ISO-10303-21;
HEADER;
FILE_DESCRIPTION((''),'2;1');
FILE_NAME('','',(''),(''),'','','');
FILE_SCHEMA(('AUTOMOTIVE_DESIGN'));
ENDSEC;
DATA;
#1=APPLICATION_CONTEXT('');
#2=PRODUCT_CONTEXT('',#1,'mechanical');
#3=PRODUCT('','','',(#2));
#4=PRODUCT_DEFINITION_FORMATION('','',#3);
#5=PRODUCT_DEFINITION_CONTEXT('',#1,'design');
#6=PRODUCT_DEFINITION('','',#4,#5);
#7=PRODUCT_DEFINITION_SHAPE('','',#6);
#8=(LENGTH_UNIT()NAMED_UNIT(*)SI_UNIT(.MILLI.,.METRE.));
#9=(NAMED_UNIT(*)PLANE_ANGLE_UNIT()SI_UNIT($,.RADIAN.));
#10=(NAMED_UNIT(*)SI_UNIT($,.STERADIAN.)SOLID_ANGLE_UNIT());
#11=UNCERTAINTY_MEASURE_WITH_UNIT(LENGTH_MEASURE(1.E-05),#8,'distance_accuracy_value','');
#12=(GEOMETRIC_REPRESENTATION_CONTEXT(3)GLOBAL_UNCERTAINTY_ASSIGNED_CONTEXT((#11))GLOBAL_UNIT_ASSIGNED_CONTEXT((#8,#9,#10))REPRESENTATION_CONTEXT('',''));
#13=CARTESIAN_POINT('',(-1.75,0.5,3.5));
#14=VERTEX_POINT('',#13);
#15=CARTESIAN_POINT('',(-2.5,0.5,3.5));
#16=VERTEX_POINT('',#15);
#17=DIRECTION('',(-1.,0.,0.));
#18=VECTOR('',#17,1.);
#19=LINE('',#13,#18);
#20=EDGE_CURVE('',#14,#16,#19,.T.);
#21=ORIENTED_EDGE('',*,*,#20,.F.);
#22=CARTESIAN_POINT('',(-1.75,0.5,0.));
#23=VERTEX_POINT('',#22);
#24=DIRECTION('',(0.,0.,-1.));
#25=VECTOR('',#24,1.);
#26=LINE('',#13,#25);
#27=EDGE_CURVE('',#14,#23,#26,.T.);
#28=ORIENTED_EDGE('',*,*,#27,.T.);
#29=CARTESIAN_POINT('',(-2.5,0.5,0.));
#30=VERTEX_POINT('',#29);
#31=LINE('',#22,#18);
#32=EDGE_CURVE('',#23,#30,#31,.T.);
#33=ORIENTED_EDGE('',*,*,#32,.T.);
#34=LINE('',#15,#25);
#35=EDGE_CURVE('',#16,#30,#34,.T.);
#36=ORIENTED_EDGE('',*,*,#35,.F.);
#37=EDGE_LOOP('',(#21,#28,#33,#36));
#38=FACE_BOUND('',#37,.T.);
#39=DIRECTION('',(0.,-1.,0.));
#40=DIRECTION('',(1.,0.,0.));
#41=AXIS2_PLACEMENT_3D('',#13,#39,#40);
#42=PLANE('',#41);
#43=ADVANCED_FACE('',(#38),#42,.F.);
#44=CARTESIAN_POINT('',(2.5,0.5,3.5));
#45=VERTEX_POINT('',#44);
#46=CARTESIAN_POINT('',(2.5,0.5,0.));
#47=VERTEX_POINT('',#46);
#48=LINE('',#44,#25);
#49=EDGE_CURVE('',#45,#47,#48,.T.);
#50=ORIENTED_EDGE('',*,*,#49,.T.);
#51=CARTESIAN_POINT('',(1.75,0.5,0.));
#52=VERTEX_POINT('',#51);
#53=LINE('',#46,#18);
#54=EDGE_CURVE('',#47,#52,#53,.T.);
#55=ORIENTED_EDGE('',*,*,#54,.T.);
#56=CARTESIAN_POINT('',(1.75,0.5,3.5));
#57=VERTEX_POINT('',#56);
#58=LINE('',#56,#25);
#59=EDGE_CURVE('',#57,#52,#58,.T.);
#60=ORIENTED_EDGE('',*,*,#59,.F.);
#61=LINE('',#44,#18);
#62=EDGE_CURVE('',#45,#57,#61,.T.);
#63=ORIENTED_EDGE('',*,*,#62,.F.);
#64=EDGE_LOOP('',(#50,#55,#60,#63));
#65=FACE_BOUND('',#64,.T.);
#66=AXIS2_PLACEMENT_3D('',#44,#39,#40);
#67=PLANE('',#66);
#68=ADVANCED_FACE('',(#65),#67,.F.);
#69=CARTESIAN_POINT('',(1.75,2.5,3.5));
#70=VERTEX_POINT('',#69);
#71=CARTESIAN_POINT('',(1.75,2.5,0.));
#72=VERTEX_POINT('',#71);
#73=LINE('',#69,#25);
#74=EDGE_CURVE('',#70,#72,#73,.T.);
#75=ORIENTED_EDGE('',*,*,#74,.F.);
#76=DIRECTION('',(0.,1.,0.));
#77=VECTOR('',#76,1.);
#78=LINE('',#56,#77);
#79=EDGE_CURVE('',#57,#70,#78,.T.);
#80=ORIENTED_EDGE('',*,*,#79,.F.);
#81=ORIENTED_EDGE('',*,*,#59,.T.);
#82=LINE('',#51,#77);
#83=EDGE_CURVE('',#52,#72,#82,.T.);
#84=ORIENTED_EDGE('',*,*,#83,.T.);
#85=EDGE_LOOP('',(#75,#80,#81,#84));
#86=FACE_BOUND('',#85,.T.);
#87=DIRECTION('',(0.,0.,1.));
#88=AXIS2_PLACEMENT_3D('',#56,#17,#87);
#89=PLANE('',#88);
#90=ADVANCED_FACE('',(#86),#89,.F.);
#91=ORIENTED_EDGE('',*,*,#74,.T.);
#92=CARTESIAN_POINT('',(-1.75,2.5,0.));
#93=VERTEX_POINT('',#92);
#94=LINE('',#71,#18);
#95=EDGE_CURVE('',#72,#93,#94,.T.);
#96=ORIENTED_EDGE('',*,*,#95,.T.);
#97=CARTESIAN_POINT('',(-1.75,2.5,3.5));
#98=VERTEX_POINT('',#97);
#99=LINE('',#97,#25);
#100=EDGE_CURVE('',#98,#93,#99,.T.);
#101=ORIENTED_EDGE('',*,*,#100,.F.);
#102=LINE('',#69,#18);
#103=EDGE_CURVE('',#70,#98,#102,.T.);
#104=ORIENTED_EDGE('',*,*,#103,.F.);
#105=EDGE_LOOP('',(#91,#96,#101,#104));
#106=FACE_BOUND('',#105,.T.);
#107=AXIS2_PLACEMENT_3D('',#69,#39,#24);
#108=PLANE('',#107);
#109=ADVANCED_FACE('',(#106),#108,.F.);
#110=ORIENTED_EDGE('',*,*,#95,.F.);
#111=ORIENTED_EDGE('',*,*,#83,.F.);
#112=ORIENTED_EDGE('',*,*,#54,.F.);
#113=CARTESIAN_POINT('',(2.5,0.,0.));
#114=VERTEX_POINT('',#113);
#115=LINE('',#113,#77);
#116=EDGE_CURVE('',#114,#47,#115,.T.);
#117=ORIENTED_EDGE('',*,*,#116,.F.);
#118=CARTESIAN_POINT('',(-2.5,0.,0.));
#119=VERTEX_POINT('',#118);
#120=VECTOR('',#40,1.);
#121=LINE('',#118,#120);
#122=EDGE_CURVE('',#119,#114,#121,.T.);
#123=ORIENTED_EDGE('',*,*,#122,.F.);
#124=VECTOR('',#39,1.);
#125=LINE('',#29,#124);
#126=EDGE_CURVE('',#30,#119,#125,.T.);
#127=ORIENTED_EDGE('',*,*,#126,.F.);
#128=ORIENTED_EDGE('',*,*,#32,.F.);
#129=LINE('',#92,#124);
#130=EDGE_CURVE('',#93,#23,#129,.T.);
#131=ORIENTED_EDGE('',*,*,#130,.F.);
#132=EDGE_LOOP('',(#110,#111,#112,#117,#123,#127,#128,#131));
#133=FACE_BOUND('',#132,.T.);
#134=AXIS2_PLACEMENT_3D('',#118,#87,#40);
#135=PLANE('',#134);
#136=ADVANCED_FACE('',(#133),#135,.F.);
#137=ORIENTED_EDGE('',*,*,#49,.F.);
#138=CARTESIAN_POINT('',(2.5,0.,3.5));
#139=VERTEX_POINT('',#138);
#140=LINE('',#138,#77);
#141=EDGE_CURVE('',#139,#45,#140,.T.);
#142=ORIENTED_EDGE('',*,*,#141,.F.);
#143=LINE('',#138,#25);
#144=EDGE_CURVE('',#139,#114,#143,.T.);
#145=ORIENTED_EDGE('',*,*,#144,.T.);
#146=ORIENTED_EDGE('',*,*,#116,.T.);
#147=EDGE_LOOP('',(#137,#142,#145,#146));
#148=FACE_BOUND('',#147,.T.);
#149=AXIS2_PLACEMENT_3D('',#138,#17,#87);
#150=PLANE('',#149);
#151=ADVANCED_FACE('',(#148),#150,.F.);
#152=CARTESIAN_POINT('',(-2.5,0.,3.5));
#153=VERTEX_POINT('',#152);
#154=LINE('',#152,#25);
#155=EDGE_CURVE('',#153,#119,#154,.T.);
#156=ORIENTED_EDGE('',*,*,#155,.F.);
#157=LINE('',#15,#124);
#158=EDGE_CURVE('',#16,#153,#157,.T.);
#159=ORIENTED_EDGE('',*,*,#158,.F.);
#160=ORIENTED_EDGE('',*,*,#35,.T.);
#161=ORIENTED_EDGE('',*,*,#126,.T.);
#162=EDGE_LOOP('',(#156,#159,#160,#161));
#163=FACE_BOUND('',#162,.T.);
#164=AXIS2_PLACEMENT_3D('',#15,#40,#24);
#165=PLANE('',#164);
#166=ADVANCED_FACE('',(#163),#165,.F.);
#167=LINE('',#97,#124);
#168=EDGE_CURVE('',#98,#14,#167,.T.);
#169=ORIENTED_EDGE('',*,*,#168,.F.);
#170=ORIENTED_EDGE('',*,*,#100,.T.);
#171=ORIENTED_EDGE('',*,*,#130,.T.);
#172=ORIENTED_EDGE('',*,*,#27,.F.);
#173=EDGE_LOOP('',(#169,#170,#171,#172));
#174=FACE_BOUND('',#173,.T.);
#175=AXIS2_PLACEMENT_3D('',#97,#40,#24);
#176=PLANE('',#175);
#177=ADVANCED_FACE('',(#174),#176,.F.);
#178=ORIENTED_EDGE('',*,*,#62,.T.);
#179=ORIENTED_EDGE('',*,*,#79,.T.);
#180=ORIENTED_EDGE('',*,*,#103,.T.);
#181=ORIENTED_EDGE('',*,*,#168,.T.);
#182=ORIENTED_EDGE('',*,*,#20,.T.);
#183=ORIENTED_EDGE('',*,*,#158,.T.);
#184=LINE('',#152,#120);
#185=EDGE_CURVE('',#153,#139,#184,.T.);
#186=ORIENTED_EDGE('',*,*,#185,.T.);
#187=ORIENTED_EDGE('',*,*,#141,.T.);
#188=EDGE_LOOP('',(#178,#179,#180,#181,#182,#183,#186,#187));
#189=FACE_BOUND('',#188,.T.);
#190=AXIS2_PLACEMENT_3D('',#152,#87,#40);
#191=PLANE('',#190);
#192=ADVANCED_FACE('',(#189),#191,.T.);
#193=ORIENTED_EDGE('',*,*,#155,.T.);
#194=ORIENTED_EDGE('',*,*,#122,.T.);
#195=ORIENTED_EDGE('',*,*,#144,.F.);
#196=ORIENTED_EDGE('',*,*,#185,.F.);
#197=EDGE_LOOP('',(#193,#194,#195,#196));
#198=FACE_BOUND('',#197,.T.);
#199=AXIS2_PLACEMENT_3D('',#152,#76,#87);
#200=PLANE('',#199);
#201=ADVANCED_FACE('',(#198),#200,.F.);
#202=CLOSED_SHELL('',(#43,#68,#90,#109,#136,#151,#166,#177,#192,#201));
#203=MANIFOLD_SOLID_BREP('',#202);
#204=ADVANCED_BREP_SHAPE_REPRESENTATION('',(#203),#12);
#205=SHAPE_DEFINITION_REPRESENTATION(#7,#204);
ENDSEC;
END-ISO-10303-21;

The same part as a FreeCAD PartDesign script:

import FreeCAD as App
import Part
import Sketcher

V = App.Vector


def add_polygon(sketch, points):
    """Adds a closed chain of lines whose ends are joined by coincident constraints."""
    first, n = sketch.GeometryCount, len(points)
    for a, b in zip(points, points[1:] + points[:1]):
        sketch.addGeometry(Part.LineSegment(App.Vector(*a, 0), App.Vector(*b, 0)), False)
    for i in range(n):
        sketch.addConstraint(Sketcher.Constraint("Coincident", first + i, 2, first + (i + 1) % n, 1))

doc = App.newDocument("Part")
body = doc.addObject("PartDesign::Body", "Body")

# Sketch on XY plane
sketch1 = body.newObject("Sketcher::SketchObject", "Sketch")
sketch1.AttachmentSupport = (doc.getObject("XY_Plane"), [""])
sketch1.MapMode = "FlatFace"
add_polygon(sketch1, [(-2.5, 0), (2.5, 0), (2.5, 0.5), (1.8, 0.5), (1.8, 2.5), (-1.8, 2.5), (-1.8, 0.5), (-2.5, 0.5)])  # lines 0-7
sketch1.addConstraint([
    Sketcher.Constraint("Horizontal", 0),
    Sketcher.Constraint("Vertical", 1),
    Sketcher.Constraint("Horizontal", 2),
    Sketcher.Constraint("Vertical", 3),
    Sketcher.Constraint("Horizontal", 4),
    Sketcher.Constraint("Vertical", 5),
    Sketcher.Constraint("Horizontal", 6),
    Sketcher.Constraint("Vertical", 7),
    Sketcher.Constraint("Symmetric", 0, 2, 7, 2, -1, 1),
    Sketcher.Constraint("Symmetric", 2, 2, 5, 2, -2),
    Sketcher.Constraint("DistanceX", 0, 1, 0, 2, 5.0),
    Sketcher.Constraint("DistanceY", 3, 1, 3, 2, 2.0),
    Sketcher.Constraint("DistanceX", 4, 2, 4, 1, 3.5),
    Sketcher.Constraint("DistanceY", 1, 1, 1, 2, 0.5),
])
pad1 = body.newObject("PartDesign::Pad", "Pad")
pad1.Profile = sketch1
pad1.Length = 3.5

doc.recompute()
